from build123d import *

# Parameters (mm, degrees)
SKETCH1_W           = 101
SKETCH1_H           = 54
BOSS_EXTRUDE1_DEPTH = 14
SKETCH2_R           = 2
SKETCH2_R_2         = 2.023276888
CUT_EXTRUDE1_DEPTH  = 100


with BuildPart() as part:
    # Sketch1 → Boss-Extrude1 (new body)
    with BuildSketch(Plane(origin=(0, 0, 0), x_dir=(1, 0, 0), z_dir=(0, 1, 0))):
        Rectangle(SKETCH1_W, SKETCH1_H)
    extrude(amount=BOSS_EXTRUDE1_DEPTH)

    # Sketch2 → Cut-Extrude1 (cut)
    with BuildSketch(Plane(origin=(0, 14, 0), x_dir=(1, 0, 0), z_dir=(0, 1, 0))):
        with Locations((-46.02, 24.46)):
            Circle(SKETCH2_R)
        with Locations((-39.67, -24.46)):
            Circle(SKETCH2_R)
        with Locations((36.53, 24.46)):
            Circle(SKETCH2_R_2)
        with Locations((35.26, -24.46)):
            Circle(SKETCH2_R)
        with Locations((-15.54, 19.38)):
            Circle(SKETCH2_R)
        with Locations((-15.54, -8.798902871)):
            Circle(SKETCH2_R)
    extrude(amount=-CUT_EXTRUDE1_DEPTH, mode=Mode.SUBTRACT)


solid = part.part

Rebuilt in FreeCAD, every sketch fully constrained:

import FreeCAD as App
import Part
import Sketcher

V = App.Vector
Q = App.Units.Quantity

doc = App.newDocument("Part")
body = doc.addObject("PartDesign::Body", "Body")

# Sketch on XZ plane
sketch1 = doc.addObject("Sketcher::SketchObject", "Sketch")
body.addObject(sketch1)
sketch1.AttachmentSupport = (doc.XZ_Plane, [""])
sketch1.MapMode = "FlatFace"
sketch1.addGeometry([
    Part.LineSegment(V(-50, -27, 0), V(-50, 27, 0)),
    Part.LineSegment(V(-50, 27, 0), V(50, 27, 0)),
    Part.LineSegment(V(50, 27, 0), V(50, -27, 0)),
    Part.LineSegment(V(50, -27, 0), V(-50, -27, 0)),
], False)
sketch1.addConstraint([
    Sketcher.Constraint("Coincident", 0, 2, 1, 1),
    Sketcher.Constraint("Coincident", 1, 2, 2, 1),
    Sketcher.Constraint("Coincident", 2, 2, 3, 1),
    Sketcher.Constraint("Coincident", 3, 2, 0, 1),
    Sketcher.Constraint("Vertical", 0),
    Sketcher.Constraint("Horizontal", 1),
    Sketcher.Constraint("Vertical", 2),
    Sketcher.Constraint("Horizontal", 3),
    Sketcher.Constraint("Symmetric", 0, 2, 2, 2, -1, 1),
    Sketcher.Constraint("DistanceX", 1, 1, 1, 2, Q("101 mm")),
    Sketcher.Constraint("DistanceY", 0, 1, 0, 2, Q("54 mm")),
])
pad1 = doc.addObject("PartDesign::Pad", "Pad")
body.addObject(pad1)
pad1.Profile = sketch1
pad1.Length = 14
pad1.Reversed = True

# Sketch on XZ plane
sketch2 = doc.addObject("Sketcher::SketchObject", "Sketch001")
body.addObject(sketch2)
sketch2.AttachmentSupport = (doc.XZ_Plane, [""])
sketch2.MapMode = "FlatFace"
sketch2.AttachmentOffset = App.Placement(V(0, 0, -14), App.Rotation())
sketch2.addGeometry([
    Part.Circle(V(-46, -24.5, 0), V(0, 0, 1), 2),  # 0
    Part.Circle(V(-39.7, 24.5, 0), V(0, 0, 1), 2),  # 1
    Part.Circle(V(36.5, -24.5, 0), V(0, 0, 1), 2),  # 2
    Part.Circle(V(35.3, 24.5, 0), V(0, 0, 1), 2),  # 3
    Part.Circle(V(-15.5, -19.4, 0), V(0, 0, 1), 2),  # 4
    Part.Circle(V(-15.5, 8.8, 0), V(0, 0, 1), 2),  # 5
], False)
sketch2.addConstraint([
    Sketcher.Constraint("Equal", 0, 1),
    Sketcher.Constraint("Equal", 1, 3),
    Sketcher.Constraint("Equal", 3, 4),
    Sketcher.Constraint("Equal", 4, 5),
    Sketcher.Constraint("Horizontal", 0, 3, 2, 3),
    Sketcher.Constraint("Horizontal", 1, 3, 3, 3),
    Sketcher.Constraint("Vertical", 4, 3, 5, 3),
    Sketcher.Constraint("Diameter", 0, Q("4 mm")),
    Sketcher.Constraint("DistanceX", 1, 3, 2, 3, Q("76.2 mm")),
    Sketcher.Constraint("DistanceX", 4, 3, 3, 3, Q("50.8 mm")),
    Sketcher.Constraint("DistanceX", 0, 3, -1, 1, Q("46.02 mm")),
    Sketcher.Constraint("DistanceY", 0, 3, -1, 1, Q("24.46 mm")),
    Sketcher.Constraint("DistanceX", 1, 3, -1, 1, Q("39.67 mm")),
    Sketcher.Constraint("DistanceY", -1, 1, 1, 3, Q("24.46 mm")),
    Sketcher.Constraint("DistanceX", -1, 1, 3, 3, Q("35.26 mm")),
    Sketcher.Constraint("DistanceY", 4, 3, -1, 1, Q("19.38 mm")),
    Sketcher.Constraint("Diameter", 2, Q("4.046554 mm")),
    Sketcher.Constraint("DistanceY", -1, 1, 5, 3, Q("8.798903 mm")),
])
pocket1 = doc.addObject("PartDesign::Pocket", "Pocket")
body.addObject(pocket1)
pocket1.Profile = sketch2
pocket1.Length = 100
pocket1.Reversed = True

doc.recompute()
